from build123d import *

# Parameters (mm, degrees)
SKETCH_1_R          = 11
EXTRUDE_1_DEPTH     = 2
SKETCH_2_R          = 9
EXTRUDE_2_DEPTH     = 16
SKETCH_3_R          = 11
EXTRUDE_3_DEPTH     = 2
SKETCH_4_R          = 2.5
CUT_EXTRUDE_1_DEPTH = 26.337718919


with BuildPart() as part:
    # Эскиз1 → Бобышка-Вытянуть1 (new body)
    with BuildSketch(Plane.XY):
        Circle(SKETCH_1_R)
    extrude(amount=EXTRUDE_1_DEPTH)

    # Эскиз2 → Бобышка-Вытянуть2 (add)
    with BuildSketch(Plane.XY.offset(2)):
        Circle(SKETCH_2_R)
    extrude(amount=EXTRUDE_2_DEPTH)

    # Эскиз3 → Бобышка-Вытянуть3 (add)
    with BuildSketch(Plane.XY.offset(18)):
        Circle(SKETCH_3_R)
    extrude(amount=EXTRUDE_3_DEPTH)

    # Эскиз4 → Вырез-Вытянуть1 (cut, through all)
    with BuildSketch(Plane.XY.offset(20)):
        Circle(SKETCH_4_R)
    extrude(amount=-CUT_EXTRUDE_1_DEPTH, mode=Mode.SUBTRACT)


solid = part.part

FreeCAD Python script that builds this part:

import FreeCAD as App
import Part
import Sketcher

V = App.Vector

doc = App.newDocument("Part")
body = doc.addObject("PartDesign::Body", "Body")

# Sketch on XY plane
sketch1 = doc.addObject("Sketcher::SketchObject", "Sketch")
body.addObject(sketch1)
sketch1.AttachmentSupport = (doc.XY_Plane, [""])
sketch1.MapMode = "FlatFace"
sketch1.addGeometry(Part.Circle(V(0, 0, 0), V(0, 0, 1), 11), False)
sketch1.addConstraint(Sketcher.Constraint("Coincident", 0, 3, -1, 1))
sketch1.addConstraint(Sketcher.Constraint("Diameter", 0, 22.0))
pad1 = doc.addObject("PartDesign::Pad", "Pad")
body.addObject(pad1)
pad1.Profile = sketch1
pad1.Length = 2

# Sketch on XY plane
sketch2 = doc.addObject("Sketcher::SketchObject", "Sketch001")
body.addObject(sketch2)
sketch2.AttachmentSupport = (doc.XY_Plane, [""])
sketch2.MapMode = "FlatFace"
sketch2.AttachmentOffset = App.Placement(V(0, 0, 2), App.Rotation())
sketch2.addGeometry(Part.Circle(V(0, 0, 0), V(0, 0, 1), 9), False)
sketch2.addConstraint(Sketcher.Constraint("Coincident", 0, 3, -1, 1))
sketch2.addConstraint(Sketcher.Constraint("Diameter", 0, 18.0))
pad2 = doc.addObject("PartDesign::Pad", "Pad001")
body.addObject(pad2)
pad2.Profile = sketch2
pad2.Length = 16

# Sketch on XY plane
sketch3 = doc.addObject("Sketcher::SketchObject", "Sketch002")
body.addObject(sketch3)
sketch3.AttachmentSupport = (doc.XY_Plane, [""])
sketch3.MapMode = "FlatFace"
sketch3.AttachmentOffset = App.Placement(V(0, 0, 18), App.Rotation())
sketch3.addGeometry(Part.Circle(V(0, 0, 0), V(0, 0, 1), 11), False)
sketch3.addConstraint(Sketcher.Constraint("Coincident", 0, 3, -1, 1))
sketch3.addConstraint(Sketcher.Constraint("Diameter", 0, 22.0))
pad3 = doc.addObject("PartDesign::Pad", "Pad002")
body.addObject(pad3)
pad3.Profile = sketch3
pad3.Length = 2

# Sketch on XY plane
sketch4 = doc.addObject("Sketcher::SketchObject", "Sketch003")
body.addObject(sketch4)
sketch4.AttachmentSupport = (doc.XY_Plane, [""])
sketch4.MapMode = "FlatFace"
sketch4.AttachmentOffset = App.Placement(V(0, 0, 20), App.Rotation())
sketch4.addGeometry(Part.Circle(V(0, 0, 0), V(0, 0, 1), 2.5), False)
sketch4.addConstraint(Sketcher.Constraint("Coincident", 0, 3, -1, 1))
sketch4.addConstraint(Sketcher.Constraint("Diameter", 0, 5.0))
pocket1 = doc.addObject("PartDesign::Pocket", "Pocket")
body.addObject(pocket1)
pocket1.Profile = sketch4
pocket1.Type = "ThroughAll"

doc.recompute()
